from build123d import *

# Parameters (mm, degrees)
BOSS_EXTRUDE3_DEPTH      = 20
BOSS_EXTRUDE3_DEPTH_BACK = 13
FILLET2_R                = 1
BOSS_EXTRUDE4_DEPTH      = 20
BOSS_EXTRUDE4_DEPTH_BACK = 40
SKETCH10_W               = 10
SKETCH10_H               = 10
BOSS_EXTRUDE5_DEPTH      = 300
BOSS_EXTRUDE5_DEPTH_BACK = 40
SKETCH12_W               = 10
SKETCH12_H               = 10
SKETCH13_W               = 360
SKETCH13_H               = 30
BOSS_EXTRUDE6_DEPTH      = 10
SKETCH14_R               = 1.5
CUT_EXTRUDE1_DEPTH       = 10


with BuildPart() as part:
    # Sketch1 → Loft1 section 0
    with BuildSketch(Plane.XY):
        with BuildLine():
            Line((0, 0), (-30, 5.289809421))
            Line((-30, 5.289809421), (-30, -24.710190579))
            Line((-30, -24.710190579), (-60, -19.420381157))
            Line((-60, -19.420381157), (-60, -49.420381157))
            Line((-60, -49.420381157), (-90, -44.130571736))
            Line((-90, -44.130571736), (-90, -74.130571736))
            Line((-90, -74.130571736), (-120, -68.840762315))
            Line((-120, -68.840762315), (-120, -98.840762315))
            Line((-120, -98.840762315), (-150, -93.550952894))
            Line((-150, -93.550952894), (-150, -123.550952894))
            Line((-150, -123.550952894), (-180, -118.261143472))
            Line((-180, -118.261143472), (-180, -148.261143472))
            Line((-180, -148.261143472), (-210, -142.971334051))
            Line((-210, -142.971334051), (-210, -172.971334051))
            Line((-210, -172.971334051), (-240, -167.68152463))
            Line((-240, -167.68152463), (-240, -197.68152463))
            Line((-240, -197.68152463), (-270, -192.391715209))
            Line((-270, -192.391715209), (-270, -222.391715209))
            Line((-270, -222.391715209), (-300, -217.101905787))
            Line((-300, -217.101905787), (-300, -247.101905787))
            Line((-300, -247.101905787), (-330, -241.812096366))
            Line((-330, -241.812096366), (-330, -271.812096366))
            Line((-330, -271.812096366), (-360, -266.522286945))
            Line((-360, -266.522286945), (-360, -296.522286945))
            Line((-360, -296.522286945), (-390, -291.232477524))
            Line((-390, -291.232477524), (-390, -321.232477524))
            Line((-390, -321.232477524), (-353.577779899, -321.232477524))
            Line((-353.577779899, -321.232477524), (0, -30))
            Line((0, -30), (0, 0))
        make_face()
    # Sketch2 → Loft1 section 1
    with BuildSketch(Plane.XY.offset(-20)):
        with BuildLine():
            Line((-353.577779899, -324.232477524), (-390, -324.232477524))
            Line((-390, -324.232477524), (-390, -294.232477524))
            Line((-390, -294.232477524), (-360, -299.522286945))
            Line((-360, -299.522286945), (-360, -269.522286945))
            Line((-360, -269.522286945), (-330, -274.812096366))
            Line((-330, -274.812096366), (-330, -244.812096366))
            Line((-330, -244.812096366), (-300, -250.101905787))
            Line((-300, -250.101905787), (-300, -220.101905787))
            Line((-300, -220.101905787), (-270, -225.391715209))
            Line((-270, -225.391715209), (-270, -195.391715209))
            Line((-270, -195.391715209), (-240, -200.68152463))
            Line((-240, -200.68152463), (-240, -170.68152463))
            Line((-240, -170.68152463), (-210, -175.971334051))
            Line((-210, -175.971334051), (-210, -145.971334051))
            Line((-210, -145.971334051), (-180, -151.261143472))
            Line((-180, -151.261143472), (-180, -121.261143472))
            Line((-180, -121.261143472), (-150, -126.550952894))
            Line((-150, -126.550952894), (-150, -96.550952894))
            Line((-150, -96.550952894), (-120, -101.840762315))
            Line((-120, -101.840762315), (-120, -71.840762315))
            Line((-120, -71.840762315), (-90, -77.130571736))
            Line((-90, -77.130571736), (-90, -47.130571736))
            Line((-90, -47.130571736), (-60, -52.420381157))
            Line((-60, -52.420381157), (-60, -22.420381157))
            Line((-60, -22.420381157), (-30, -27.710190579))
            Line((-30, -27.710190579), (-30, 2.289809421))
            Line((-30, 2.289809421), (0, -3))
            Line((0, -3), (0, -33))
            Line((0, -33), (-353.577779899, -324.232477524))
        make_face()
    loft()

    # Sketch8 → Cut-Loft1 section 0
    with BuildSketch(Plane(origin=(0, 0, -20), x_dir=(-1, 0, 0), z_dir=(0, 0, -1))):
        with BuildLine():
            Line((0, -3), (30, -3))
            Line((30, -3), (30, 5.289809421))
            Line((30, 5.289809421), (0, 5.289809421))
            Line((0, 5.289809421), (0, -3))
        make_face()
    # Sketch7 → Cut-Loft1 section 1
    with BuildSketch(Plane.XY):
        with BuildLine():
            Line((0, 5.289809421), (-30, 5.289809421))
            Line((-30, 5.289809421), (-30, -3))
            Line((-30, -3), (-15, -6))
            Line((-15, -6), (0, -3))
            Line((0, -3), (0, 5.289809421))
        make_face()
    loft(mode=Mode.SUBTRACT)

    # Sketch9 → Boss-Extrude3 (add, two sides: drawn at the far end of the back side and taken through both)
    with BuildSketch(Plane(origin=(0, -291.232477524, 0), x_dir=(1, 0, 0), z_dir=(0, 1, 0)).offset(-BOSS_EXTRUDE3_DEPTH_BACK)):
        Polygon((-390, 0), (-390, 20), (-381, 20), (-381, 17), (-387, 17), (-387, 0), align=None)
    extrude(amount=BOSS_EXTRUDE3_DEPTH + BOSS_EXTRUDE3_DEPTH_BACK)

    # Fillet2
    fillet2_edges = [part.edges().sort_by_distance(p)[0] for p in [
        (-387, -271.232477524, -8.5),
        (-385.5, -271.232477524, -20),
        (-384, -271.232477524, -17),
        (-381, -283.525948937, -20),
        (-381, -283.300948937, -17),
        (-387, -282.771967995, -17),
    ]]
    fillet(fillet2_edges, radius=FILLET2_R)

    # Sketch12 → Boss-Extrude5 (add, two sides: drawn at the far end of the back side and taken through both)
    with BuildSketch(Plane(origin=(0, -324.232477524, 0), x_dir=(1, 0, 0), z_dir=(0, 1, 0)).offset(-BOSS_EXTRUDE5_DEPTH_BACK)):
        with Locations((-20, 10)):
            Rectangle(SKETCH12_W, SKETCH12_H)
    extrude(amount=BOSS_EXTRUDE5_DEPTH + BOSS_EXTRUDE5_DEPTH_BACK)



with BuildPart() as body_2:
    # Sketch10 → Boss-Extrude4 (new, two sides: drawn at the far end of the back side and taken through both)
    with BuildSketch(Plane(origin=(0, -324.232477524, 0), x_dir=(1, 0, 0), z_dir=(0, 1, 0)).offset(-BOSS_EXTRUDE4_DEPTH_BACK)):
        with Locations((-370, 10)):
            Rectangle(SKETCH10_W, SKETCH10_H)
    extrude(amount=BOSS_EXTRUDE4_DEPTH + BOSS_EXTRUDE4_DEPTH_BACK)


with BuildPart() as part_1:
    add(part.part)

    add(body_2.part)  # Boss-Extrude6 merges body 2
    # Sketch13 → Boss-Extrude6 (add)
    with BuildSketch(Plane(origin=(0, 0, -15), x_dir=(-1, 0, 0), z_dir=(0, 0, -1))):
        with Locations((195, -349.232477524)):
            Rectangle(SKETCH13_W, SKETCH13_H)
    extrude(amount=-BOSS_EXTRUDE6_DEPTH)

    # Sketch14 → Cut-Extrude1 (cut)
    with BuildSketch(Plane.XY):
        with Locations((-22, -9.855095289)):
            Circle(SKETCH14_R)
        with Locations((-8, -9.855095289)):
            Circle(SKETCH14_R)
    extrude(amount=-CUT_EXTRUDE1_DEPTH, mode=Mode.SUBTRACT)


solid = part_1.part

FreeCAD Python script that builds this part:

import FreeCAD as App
import Part
import Sketcher
Q = App.Units.Quantity


def edges_at(feature, points):
    """Names of the edges that pass closest to the given points."""
    edges = feature.Shape.Edges
    near = lambda p: min(range(len(edges)), key=lambda i: edges[i].distToShape(Part.Vertex(*p))[0])
    return sorted({f"Edge{near(p) + 1}" for p in points})


def add_polygon(sketch, points):
    """Adds a closed chain of lines whose ends are joined by coincident constraints."""
    first, n = sketch.GeometryCount, len(points)
    for a, b in zip(points, points[1:] + points[:1]):
        sketch.addGeometry(Part.LineSegment(App.Vector(*a, 0), App.Vector(*b, 0)), False)
    for i in range(n):
        sketch.addConstraint(Sketcher.Constraint("Coincident", first + i, 2, first + (i + 1) % n, 1))

doc = App.newDocument("Part")
body = doc.addObject("PartDesign::Body", "Body")

sketch1 = doc.addObject("Sketcher::SketchObject", "Sketch")
body.addObject(sketch1)
sketch1.AttachmentSupport = (doc.XY_Plane, [""])
sketch1.MapMode = "FlatFace"
add_polygon(sketch1, [(0, 0), (-30, 5), (-30, -25), (-60, -19), (-60, -49), (-90, -44), (-90, -74), (-120, -69), (-120, -99), (-150, -94), (-150, -124), (-180, -118), (-180, -148), (-210, -143), (-210, -173), (-240, -168), (-240, -198), (-270, -192), (-270, -222), (-300, -217), (-300, -247), (-330, -242), (-330, -272), (-360, -267), (-360, -297), (-390, -291), (-390, -321), (-354, -321), (0, -30)])
sketch1.addConstraint([
    Sketcher.Constraint("Vertical", 1),
    Sketcher.Constraint("Vertical", 3),
    Sketcher.Constraint("Vertical", 5),
    Sketcher.Constraint("Vertical", 7),
    Sketcher.Constraint("Vertical", 9),
    Sketcher.Constraint("Vertical", 11),
    Sketcher.Constraint("Vertical", 13),
    Sketcher.Constraint("Vertical", 15),
    Sketcher.Constraint("Vertical", 17),
    Sketcher.Constraint("Vertical", 19),
    Sketcher.Constraint("Vertical", 21),
    Sketcher.Constraint("Vertical", 23),
    Sketcher.Constraint("Vertical", 25),
    Sketcher.Constraint("Horizontal", 26),
    Sketcher.Constraint("Vertical", 28),
    Sketcher.Constraint("Coincident", 28, 2, -1, 1),
    Sketcher.Constraint("Parallel", 0, 2),
    Sketcher.Constraint("Parallel", 2, 4),
    Sketcher.Constraint("Parallel", 4, 6),
    Sketcher.Constraint("Parallel", 6, 8),
    Sketcher.Constraint("Parallel", 8, 10),
    Sketcher.Constraint("Parallel", 10, 12),
    Sketcher.Constraint("Parallel", 12, 14),
    Sketcher.Constraint("Parallel", 14, 16),
    Sketcher.Constraint("Parallel", 16, 18),
    Sketcher.Constraint("Parallel", 18, 20),
    Sketcher.Constraint("Parallel", 20, 22),
    Sketcher.Constraint("Parallel", 22, 24),
    Sketcher.Constraint("Equal", 1, 3),
    Sketcher.Constraint("Equal", 3, 5),
    Sketcher.Constraint("Equal", 5, 7),
    Sketcher.Constraint("Equal", 7, 9),
    Sketcher.Constraint("Equal", 9, 11),
    Sketcher.Constraint("Equal", 11, 13),
    Sketcher.Constraint("Equal", 13, 15),
    Sketcher.Constraint("Equal", 15, 17),
    Sketcher.Constraint("Equal", 17, 19),
    Sketcher.Constraint("Equal", 19, 21),
    Sketcher.Constraint("Equal", 21, 23),
    Sketcher.Constraint("Equal", 23, 25),
    Sketcher.Constraint("Equal", 25, 28),
    Sketcher.Constraint("Equal", 0, 2),
    Sketcher.Constraint("Equal", 2, 4),
    Sketcher.Constraint("Equal", 4, 6),
    Sketcher.Constraint("Equal", 6, 8),
    Sketcher.Constraint("Equal", 8, 10),
    Sketcher.Constraint("Equal", 10, 12),
    Sketcher.Constraint("Equal", 12, 14),
    Sketcher.Constraint("Equal", 14, 16),
    Sketcher.Constraint("Equal", 16, 18),
    Sketcher.Constraint("Equal", 18, 20),
    Sketcher.Constraint("Equal", 20, 22),
    Sketcher.Constraint("Equal", 22, 24),
    Sketcher.Constraint("DistanceY", 1, 2, 1, 1, Q("30 mm")),
    Sketcher.Constraint("Angle", 0, Q("170 deg")),
    Sketcher.Constraint("DistanceX", 0, 2, -1, 1, Q("30 mm")),
    Sketcher.Constraint("DistanceX", 26, 1, 26, 2, Q("36.42222 mm")),
])

sketch2 = doc.addObject("Sketcher::SketchObject", "Sketch001")
body.addObject(sketch2)
sketch2.AttachmentSupport = (doc.XY_Plane, [""])
sketch2.MapMode = "FlatFace"
sketch2.AttachmentOffset = App.Placement(App.Vector(0, 0, -20), App.Rotation())
add_polygon(sketch2, [(-390, -324), (-354, -324), (0, -33), (0, -3), (-30, 2), (-30, -28), (-60, -22), (-60, -52), (-90, -47), (-90, -77), (-120, -72), (-120, -102), (-150, -97), (-150, -127), (-180, -121), (-180, -151), (-210, -146), (-210, -176), (-240, -171), (-240, -201), (-270, -195), (-270, -225), (-300, -220), (-300, -250), (-330, -245), (-330, -275), (-360, -270), (-360, -300), (-390, -294)])
sketch2.addConstraint([
    Sketcher.Constraint("Horizontal", 0),
    Sketcher.Constraint("Vertical", 2),
    Sketcher.Constraint("Vertical", 4),
    Sketcher.Constraint("Vertical", 6),
    Sketcher.Constraint("Vertical", 8),
    Sketcher.Constraint("Vertical", 10),
    Sketcher.Constraint("Vertical", 12),
    Sketcher.Constraint("Vertical", 14),
    Sketcher.Constraint("Vertical", 16),
    Sketcher.Constraint("Vertical", 18),
    Sketcher.Constraint("Vertical", 20),
    Sketcher.Constraint("Vertical", 22),
    Sketcher.Constraint("Vertical", 24),
    Sketcher.Constraint("Vertical", 26),
    Sketcher.Constraint("Vertical", 28),
    Sketcher.Constraint("PointOnObject", 1, 2, -2),
    Sketcher.Constraint("Parallel", 3, 5),
    Sketcher.Constraint("Parallel", 5, 7),
    Sketcher.Constraint("Parallel", 7, 9),
    Sketcher.Constraint("Parallel", 9, 11),
    Sketcher.Constraint("Parallel", 11, 13),
    Sketcher.Constraint("Parallel", 13, 15),
    Sketcher.Constraint("Parallel", 15, 17),
    Sketcher.Constraint("Parallel", 17, 19),
    Sketcher.Constraint("Parallel", 19, 21),
    Sketcher.Constraint("Parallel", 21, 23),
    Sketcher.Constraint("Parallel", 23, 25),
    Sketcher.Constraint("Parallel", 25, 27),
    Sketcher.Constraint("Equal", 2, 4),
    Sketcher.Constraint("Equal", 4, 6),
    Sketcher.Constraint("Equal", 6, 8),
    Sketcher.Constraint("Equal", 8, 10),
    Sketcher.Constraint("Equal", 10, 12),
    Sketcher.Constraint("Equal", 12, 14),
    Sketcher.Constraint("Equal", 14, 16),
    Sketcher.Constraint("Equal", 16, 18),
    Sketcher.Constraint("Equal", 18, 20),
    Sketcher.Constraint("Equal", 20, 22),
    Sketcher.Constraint("Equal", 22, 24),
    Sketcher.Constraint("Equal", 24, 26),
    Sketcher.Constraint("Equal", 26, 28),
    Sketcher.Constraint("Equal", 3, 5),
    Sketcher.Constraint("Equal", 5, 7),
    Sketcher.Constraint("Equal", 7, 9),
    Sketcher.Constraint("Equal", 9, 11),
    Sketcher.Constraint("Equal", 11, 13),
    Sketcher.Constraint("Equal", 13, 15),
    Sketcher.Constraint("Equal", 15, 17),
    Sketcher.Constraint("Equal", 17, 19),
    Sketcher.Constraint("Equal", 19, 21),
    Sketcher.Constraint("Equal", 21, 23),
    Sketcher.Constraint("Equal", 23, 25),
    Sketcher.Constraint("Equal", 25, 27),
    Sketcher.Constraint("DistanceY", 2, 1, 2, 2, Q("30 mm")),
    Sketcher.Constraint("Angle", 3, Q("170 deg")),
    Sketcher.Constraint("DistanceY", 1, 2, -1, 1, Q("33 mm")),
    Sketcher.Constraint("DistanceX", 3, 2, -1, 1, Q("30 mm")),
    Sketcher.Constraint("DistanceX", 0, 1, 0, 2, Q("36.42222 mm")),
])

additiveloft = doc.addObject("PartDesign::AdditiveLoft", "AdditiveLoft")
body.addObject(additiveloft)
additiveloft.Profile = sketch1
additiveloft.Sections = [sketch2]

sketch3 = doc.addObject("Sketcher::SketchObject", "Sketch002")
body.addObject(sketch3)
sketch3.AttachmentSupport = (doc.XY_Plane, [""])
sketch3.MapMode = "FlatFace"
sketch3.AttachmentOffset = App.Placement(App.Vector(0, 0, -20), App.Rotation())
add_polygon(sketch3, [(0, -3), (-30, -3), (-30, 5), (0, 5)])
sketch3.addConstraint([
    Sketcher.Constraint("Horizontal", 0),
    Sketcher.Constraint("Vertical", 1),
    Sketcher.Constraint("Horizontal", 2),
    Sketcher.Constraint("Vertical", 3),
    Sketcher.Constraint("PointOnObject", 2, 2, -2),
    Sketcher.Constraint("DistanceX", 0, 2, 0, 1, Q("30 mm")),
    Sketcher.Constraint("DistanceY", 0, 2, -1, 1, Q("3 mm")),
    Sketcher.Constraint("DistanceY", 1, 1, 1, 2, Q("8.289809 mm")),
])

sketch4 = doc.addObject("Sketcher::SketchObject", "Sketch003")
body.addObject(sketch4)
sketch4.AttachmentSupport = (doc.XY_Plane, [""])
sketch4.MapMode = "FlatFace"
add_polygon(sketch4, [(0, 5), (-30, 5), (-30, -3), (-15, -6), (0, -3)])
sketch4.addConstraint([
    Sketcher.Constraint("Horizontal", 0),
    Sketcher.Constraint("Vertical", 1),
    Sketcher.Constraint("Vertical", 4),
    Sketcher.Constraint("PointOnObject", 3, 2, -2),
    Sketcher.Constraint("Horizontal", 1, 2, 3, 2),
    Sketcher.Constraint("Equal", 2, 3),
    Sketcher.Constraint("DistanceX", 0, 2, 0, 1, Q("30 mm")),
    Sketcher.Constraint("DistanceY", 1, 2, -1, 1, Q("3 mm")),
    Sketcher.Constraint("DistanceY", 2, 2, -1, 1, Q("6 mm")),
    Sketcher.Constraint("DistanceY", 1, 2, 1, 1, Q("8.289809 mm")),
])

subtractiveloft = doc.addObject("PartDesign::SubtractiveLoft", "SubtractiveLoft")
body.addObject(subtractiveloft)
subtractiveloft.Profile = sketch3
subtractiveloft.Sections = [sketch4]

sketch5 = doc.addObject("Sketcher::SketchObject", "Sketch004")
body.addObject(sketch5)
sketch5.AttachmentSupport = (doc.XZ_Plane, [""])
sketch5.MapMode = "FlatFace"
sketch5.AttachmentOffset = App.Placement(App.Vector(0, 0, 291.232478), App.Rotation())
add_polygon(sketch5, [(-390, -20), (-390, 0), (-387, 0), (-387, -17), (-381, -17), (-381, -20)])
sketch5.addConstraint([
    Sketcher.Constraint("Vertical", 0),
    Sketcher.Constraint("Horizontal", 1),
    Sketcher.Constraint("Vertical", 2),
    Sketcher.Constraint("Horizontal", 3),
    Sketcher.Constraint("Vertical", 4),
    Sketcher.Constraint("Horizontal", 5),
    Sketcher.Constraint("PointOnObject", 0, 2, -1),
    Sketcher.Constraint("Equal", 1, 4),
    Sketcher.Constraint("DistanceX", 1, 1, 1, 2, Q("3 mm")),
    Sketcher.Constraint("DistanceX", 3, 1, 3, 2, Q("6 mm")),
    Sketcher.Constraint("DistanceY", 0, 1, 0, 2, Q("20 mm")),
    Sketcher.Constraint("DistanceX", 0, 2, -1, 1, Q("390 mm")),
])
pad1 = doc.addObject("PartDesign::Pad", "Pad")
body.addObject(pad1)
pad1.Profile = sketch5
pad1.Type = "TwoLengths"
pad1.Length = 20
pad1.Length2 = 13
pad1.Reversed = True
doc.recompute()

fillet = doc.addObject("PartDesign::Fillet", "Fillet")
body.addObject(fillet)
fillet.Base = (pad1, edges_at(pad1, [
    (-387, -271.232, -8.5),
    (-385.5, -271.232, -20),
    (-384, -271.232, -17),
    (-381, -283.526, -20),
    (-381, -283.301, -17),
    (-387, -282.772, -17),
]))
fillet.Radius = 1

sketch6 = doc.addObject("Sketcher::SketchObject", "Sketch005")
body.addObject(sketch6)
sketch6.AttachmentSupport = (doc.XZ_Plane, [""])
sketch6.MapMode = "FlatFace"
sketch6.AttachmentOffset = App.Placement(App.Vector(0, 0, 324.232478), App.Rotation())
add_polygon(sketch6, [(-25, -15), (-25, -5), (-15, -5), (-15, -15)])
sketch6.addConstraint([
    Sketcher.Constraint("Vertical", 0),
    Sketcher.Constraint("Horizontal", 1),
    Sketcher.Constraint("Vertical", 2),
    Sketcher.Constraint("Horizontal", 3),
    Sketcher.Constraint("Equal", 3, 0),
    Sketcher.Constraint("DistanceX", 1, 1, 1, 2, Q("10 mm")),
    Sketcher.Constraint("DistanceX", 0, 2, -1, 1, Q("25 mm")),
    Sketcher.Constraint("DistanceY", 0, 2, -1, 1, Q("5 mm")),
])
pad2 = doc.addObject("PartDesign::Pad", "Pad001")
body.addObject(pad2)
pad2.Profile = sketch6
pad2.Type = "TwoLengths"
pad2.Length = 300
pad2.Length2 = 40
pad2.Reversed = True
body2 = doc.addObject("PartDesign::Body", "Body001")

sketch7 = doc.addObject("Sketcher::SketchObject", "Sketch006")
body2.addObject(sketch7)
sketch7.AttachmentSupport = (doc.getObject("XZ_Plane001"), [""])
sketch7.MapMode = "FlatFace"
sketch7.AttachmentOffset = App.Placement(App.Vector(0, 0, 324.232478), App.Rotation())
add_polygon(sketch7, [(-375, -15), (-375, -5), (-365, -5), (-365, -15)])
sketch7.addConstraint([
    Sketcher.Constraint("Vertical", 0),
    Sketcher.Constraint("Horizontal", 1),
    Sketcher.Constraint("Vertical", 2),
    Sketcher.Constraint("Horizontal", 3),
    Sketcher.Constraint("Equal", 3, 0),
    Sketcher.Constraint("DistanceX", 1, 1, 1, 2, Q("10 mm")),
    Sketcher.Constraint("DistanceX", 0, 2, -1, 1, Q("375 mm")),
    Sketcher.Constraint("DistanceY", 0, 2, -1, 1, Q("5 mm")),
])
pad3 = doc.addObject("PartDesign::Pad", "Pad002")
body2.addObject(pad3)
pad3.Profile = sketch7
pad3.Type = "TwoLengths"
pad3.Length = 20
pad3.Length2 = 40
pad3.Reversed = True
doc.recompute()

boolean = doc.addObject("PartDesign::Boolean", "Boolean")
body.addObject(boolean)
boolean.Type = "Fuse"
boolean.addObjects([body2])

sketch8 = doc.addObject("Sketcher::SketchObject", "Sketch007")
body.addObject(sketch8)
sketch8.AttachmentSupport = (doc.XY_Plane, [""])
sketch8.MapMode = "FlatFace"
sketch8.AttachmentOffset = App.Placement(App.Vector(0, 0, -15), App.Rotation())
add_polygon(sketch8, [(-15, -334), (-15, -364), (-375, -364), (-375, -334)])
sketch8.addConstraint([
    Sketcher.Constraint("Vertical", 0),
    Sketcher.Constraint("Horizontal", 1),
    Sketcher.Constraint("Vertical", 2),
    Sketcher.Constraint("Horizontal", 3),
    Sketcher.Constraint("DistanceX", 1, 2, 1, 1, Q("360 mm")),
    Sketcher.Constraint("DistanceY", 0, 2, 0, 1, Q("30 mm")),
    Sketcher.Constraint("DistanceX", 0, 2, -1, 1, Q("15 mm")),
    Sketcher.Constraint("DistanceY", 0, 2, -1, 1, Q("364.232478 mm")),
])
pad4 = doc.addObject("PartDesign::Pad", "Pad003")
body.addObject(pad4)
pad4.Profile = sketch8
pad4.Length = 10

sketch9 = doc.addObject("Sketcher::SketchObject", "Sketch008")
body.addObject(sketch9)
sketch9.AttachmentSupport = (doc.XY_Plane, [""])
sketch9.MapMode = "FlatFace"
sketch9.addGeometry([
    Part.Circle(App.Vector(-22, -9.9, 0), App.Vector(0, 0, 1), 1.5),
    Part.Circle(App.Vector(-8, -9.9, 0), App.Vector(0, 0, 1), 1.5),
], False)
sketch9.addConstraint([
    Sketcher.Constraint("Equal", 0, 1),
    Sketcher.Constraint("Horizontal", 0, 3, 1, 3),
    Sketcher.Constraint("Diameter", 0, Q("3 mm")),
    Sketcher.Constraint("DistanceX", 0, 3, -1, 1, Q("22 mm")),
    Sketcher.Constraint("DistanceX", 1, 3, -1, 1, Q("8 mm")),
    Sketcher.Constraint("DistanceY", 0, 3, -1, 1, Q("9.855095 mm")),
])
pocket1 = doc.addObject("PartDesign::Pocket", "Pocket")
body.addObject(pocket1)
pocket1.Profile = sketch9
pocket1.Length = 10

doc.recompute()
